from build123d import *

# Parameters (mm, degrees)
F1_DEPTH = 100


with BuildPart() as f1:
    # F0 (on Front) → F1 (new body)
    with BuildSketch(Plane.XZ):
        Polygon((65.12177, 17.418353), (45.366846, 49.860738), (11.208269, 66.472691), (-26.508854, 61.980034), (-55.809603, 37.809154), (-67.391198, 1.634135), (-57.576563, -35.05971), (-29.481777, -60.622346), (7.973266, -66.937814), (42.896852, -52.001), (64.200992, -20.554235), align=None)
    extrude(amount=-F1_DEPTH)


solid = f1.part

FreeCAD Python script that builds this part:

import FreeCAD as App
import Part
import Sketcher
Q = App.Units.Quantity


def add_polygon(sketch, points):
    """Adds a closed chain of lines whose ends are joined by coincident constraints."""
    first, n = sketch.GeometryCount, len(points)
    for a, b in zip(points, points[1:] + points[:1]):
        sketch.addGeometry(Part.LineSegment(App.Vector(*a, 0), App.Vector(*b, 0)), False)
    for i in range(n):
        sketch.addConstraint(Sketcher.Constraint("Coincident", first + i, 2, first + (i + 1) % n, 1))

doc = App.newDocument("Part")
body = doc.addObject("PartDesign::Body", "Body")

sketch1 = body.newObject("Sketcher::SketchObject", "Sketch")
sketch1.AttachmentSupport = (doc.getObject("XZ_Plane"), [""])
sketch1.MapMode = "FlatFace"
add_polygon(sketch1, [(65, 17), (45, 50), (11, 66), (-27, 62), (-56, 38), (-67, 2), (-58, -35), (-29, -61), (8, -67), (43, -52), (64, -21)])
sketch1.addConstraint([
    Sketcher.Constraint("Equal", 0, 1),
    Sketcher.Constraint("Equal", 1, 2),
    Sketcher.Constraint("Equal", 2, 3),
    Sketcher.Constraint("Equal", 3, 4),
    Sketcher.Constraint("Equal", 4, 5),
    Sketcher.Constraint("Equal", 5, 6),
    Sketcher.Constraint("Equal", 6, 7),
    Sketcher.Constraint("Equal", 7, 8),
    Sketcher.Constraint("Equal", 8, 9),
    Sketcher.Constraint("Equal", 9, 10),
    Sketcher.Constraint("DistanceY", 8, 2, -1, 1, Q("52.001 mm")),
    Sketcher.Constraint("DistanceX", 4, 2, -1, 1, Q("67.391198 mm")),
    Sketcher.Constraint("DistanceX", 2, 2, 0, 2, Q("71.8757 mm")),
    Sketcher.Constraint("DistanceY", 4, 2, 2, 2, Q("60.345899 mm")),
    Sketcher.Constraint("DistanceY", 5, 2, 1, 2, Q("101.532401 mm")),
    Sketcher.Constraint("DistanceY", 6, 2, 3, 2, Q("98.4315 mm")),
    Sketcher.Constraint("DistanceX", 1, 2, 10, 2, Q("53.913501 mm")),
    Sketcher.Constraint("Distance", 0, Q("37.983751 mm")),
    Sketcher.Constraint("DistanceX", -1, 1, 1, 2, Q("11.208269 mm")),
    Sketcher.Constraint("DistanceY", -1, 1, 1, 2, Q("66.472691 mm")),
    Sketcher.Constraint("DistanceX", -1, 1, 9, 2, Q("64.200992 mm")),
    Sketcher.Constraint("DistanceX", 3, 2, 2, 2, Q("29.300749 mm")),
])
pad1 = body.newObject("PartDesign::Pad", "Pad")
pad1.Profile = sketch1
pad1.Length = 100
pad1.Reversed = True

doc.recompute()
